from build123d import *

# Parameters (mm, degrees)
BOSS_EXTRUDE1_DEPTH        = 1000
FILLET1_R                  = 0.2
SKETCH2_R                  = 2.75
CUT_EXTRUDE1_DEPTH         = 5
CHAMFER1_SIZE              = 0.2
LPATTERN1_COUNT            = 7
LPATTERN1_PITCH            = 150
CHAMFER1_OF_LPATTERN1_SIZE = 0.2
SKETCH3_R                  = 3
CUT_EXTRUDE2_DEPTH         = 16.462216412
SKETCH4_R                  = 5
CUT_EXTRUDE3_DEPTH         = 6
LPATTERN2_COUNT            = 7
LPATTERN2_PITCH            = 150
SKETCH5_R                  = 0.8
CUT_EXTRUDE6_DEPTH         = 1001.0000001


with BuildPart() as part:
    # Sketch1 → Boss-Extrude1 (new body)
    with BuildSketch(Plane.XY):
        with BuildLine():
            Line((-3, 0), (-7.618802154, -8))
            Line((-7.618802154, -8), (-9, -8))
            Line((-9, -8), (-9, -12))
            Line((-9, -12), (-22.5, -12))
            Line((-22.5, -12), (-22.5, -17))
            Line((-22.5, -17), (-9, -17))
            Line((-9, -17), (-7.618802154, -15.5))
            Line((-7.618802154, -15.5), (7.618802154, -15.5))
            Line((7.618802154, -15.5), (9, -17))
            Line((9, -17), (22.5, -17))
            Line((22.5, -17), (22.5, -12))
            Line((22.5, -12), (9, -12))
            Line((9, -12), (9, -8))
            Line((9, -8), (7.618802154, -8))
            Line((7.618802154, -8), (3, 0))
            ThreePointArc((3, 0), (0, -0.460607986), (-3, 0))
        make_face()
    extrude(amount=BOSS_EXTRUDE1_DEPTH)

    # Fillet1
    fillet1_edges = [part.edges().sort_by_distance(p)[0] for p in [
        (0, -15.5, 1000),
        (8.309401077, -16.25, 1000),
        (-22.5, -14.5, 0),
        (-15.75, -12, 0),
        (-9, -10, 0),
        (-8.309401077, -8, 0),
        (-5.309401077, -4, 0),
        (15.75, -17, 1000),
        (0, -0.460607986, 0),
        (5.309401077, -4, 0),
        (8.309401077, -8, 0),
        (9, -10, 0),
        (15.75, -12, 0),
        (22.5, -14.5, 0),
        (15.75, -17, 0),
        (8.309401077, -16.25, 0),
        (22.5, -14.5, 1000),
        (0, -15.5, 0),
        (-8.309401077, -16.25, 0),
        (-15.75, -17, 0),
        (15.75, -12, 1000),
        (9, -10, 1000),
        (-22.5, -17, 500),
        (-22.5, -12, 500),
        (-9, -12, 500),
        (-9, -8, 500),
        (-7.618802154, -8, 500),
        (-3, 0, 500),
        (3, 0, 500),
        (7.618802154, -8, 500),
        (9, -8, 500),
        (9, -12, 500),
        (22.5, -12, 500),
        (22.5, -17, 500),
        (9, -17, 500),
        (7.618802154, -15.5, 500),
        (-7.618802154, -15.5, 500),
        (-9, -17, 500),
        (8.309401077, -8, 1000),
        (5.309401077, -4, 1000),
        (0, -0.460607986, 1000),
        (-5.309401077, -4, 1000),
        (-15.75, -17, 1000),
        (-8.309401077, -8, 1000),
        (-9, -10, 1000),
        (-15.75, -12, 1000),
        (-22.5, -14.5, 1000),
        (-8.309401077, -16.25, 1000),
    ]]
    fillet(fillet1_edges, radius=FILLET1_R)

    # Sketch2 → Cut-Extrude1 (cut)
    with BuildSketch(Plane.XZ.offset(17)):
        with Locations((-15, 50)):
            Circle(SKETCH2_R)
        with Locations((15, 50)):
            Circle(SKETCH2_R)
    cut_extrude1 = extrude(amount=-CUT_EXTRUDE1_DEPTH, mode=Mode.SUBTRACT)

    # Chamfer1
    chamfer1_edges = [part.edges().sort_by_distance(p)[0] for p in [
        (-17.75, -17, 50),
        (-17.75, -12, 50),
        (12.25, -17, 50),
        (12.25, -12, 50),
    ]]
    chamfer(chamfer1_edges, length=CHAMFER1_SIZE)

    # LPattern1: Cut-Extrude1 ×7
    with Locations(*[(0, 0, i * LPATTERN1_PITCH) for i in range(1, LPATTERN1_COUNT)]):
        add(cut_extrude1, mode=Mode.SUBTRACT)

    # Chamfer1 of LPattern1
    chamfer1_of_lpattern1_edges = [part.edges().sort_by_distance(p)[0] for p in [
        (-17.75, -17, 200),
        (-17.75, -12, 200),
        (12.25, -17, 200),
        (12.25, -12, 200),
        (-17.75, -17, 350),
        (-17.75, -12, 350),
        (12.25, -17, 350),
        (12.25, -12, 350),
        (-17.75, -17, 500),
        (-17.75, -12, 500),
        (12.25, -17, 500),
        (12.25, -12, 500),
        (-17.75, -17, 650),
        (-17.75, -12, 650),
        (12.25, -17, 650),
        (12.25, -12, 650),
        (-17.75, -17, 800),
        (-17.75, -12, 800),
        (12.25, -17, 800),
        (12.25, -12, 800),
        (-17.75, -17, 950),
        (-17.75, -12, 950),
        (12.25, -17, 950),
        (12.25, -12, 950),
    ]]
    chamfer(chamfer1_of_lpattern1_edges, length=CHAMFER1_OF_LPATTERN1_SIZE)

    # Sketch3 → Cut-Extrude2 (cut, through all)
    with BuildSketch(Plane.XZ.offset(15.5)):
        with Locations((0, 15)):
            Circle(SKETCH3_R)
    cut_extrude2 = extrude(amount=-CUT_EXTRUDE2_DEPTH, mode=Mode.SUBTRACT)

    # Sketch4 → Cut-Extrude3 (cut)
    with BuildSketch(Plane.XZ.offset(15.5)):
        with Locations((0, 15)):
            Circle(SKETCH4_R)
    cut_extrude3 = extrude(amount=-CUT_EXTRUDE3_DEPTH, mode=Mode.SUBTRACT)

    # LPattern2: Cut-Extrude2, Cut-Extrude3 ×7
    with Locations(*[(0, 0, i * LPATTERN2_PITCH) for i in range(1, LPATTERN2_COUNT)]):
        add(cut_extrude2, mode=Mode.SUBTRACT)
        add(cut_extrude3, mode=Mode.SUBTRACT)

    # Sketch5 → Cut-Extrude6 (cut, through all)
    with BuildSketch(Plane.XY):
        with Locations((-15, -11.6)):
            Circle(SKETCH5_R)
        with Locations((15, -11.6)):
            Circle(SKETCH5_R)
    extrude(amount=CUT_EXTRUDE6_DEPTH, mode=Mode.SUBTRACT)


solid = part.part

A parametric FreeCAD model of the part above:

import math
import FreeCAD as App
import Part
import Sketcher
from FreeCAD import Vector
Q = App.Units.Quantity


def edges_at(feature, points):
    """Names of the edges that pass closest to the given points."""
    edges = feature.Shape.Edges
    near = lambda p: min(range(len(edges)), key=lambda i: edges[i].distToShape(Part.Vertex(*p))[0])
    return sorted({f"Edge{near(p) + 1}" for p in points})

doc = App.newDocument("Part")
body = doc.addObject("PartDesign::Body", "Body")

# Sketch on XY plane
sketch1 = body.newObject("Sketcher::SketchObject", "Sketch")
sketch1.AttachmentSupport = (doc.getObject("XY_Plane"), [""])
sketch1.MapMode = "FlatFace"
sketch1.addGeometry([
    Part.LineSegment(Vector(-3, 0, 0), Vector(-7.618802, -8, 0)),  # 0
    Part.LineSegment(Vector(-7.618802, -8, 0), Vector(-9, -8, 0)),  # 1
    Part.LineSegment(Vector(-9, -8, 0), Vector(-9, -12, 0)),  # 2
    Part.LineSegment(Vector(-9, -12, 0), Vector(-22.5, -12, 0)),  # 3
    Part.LineSegment(Vector(-22.5, -12, 0), Vector(-22.5, -17, 0)),  # 4
    Part.LineSegment(Vector(-22.5, -17, 0), Vector(-9, -17, 0)),  # 5
    Part.LineSegment(Vector(-9, -17, 0), Vector(-7.618802, -15.5, 0)),  # 6
    Part.LineSegment(Vector(-7.618802, -15.5, 0), Vector(7.618802, -15.5, 0)),  # 7
    Part.LineSegment(Vector(7.618802, -15.5, 0), Vector(9, -17, 0)),  # 8
    Part.LineSegment(Vector(9, -17, 0), Vector(22.5, -17, 0)),  # 9
    Part.LineSegment(Vector(22.5, -17, 0), Vector(22.5, -12, 0)),  # 10
    Part.LineSegment(Vector(22.5, -12, 0), Vector(9, -12, 0)),  # 11
    Part.LineSegment(Vector(9, -12, 0), Vector(9, -8, 0)),  # 12
    Part.LineSegment(Vector(9, -8, 0), Vector(7.618802, -8, 0)),  # 13
    Part.LineSegment(Vector(7.618802, -8, 0), Vector(3, 0, 0)),  # 14
    Part.ArcOfCircle(Part.Circle(Vector(0, 9.539392, 0), Vector(0, 0, 1), 10), math.radians(-107.457603), math.radians(-72.542397)),  # 15
], False)
sketch1.addConstraint([
    Sketcher.Constraint("Coincident", 0, 2, 1, 1),
    Sketcher.Constraint("Coincident", 1, 2, 2, 1),
    Sketcher.Constraint("Coincident", 2, 2, 3, 1),
    Sketcher.Constraint("Coincident", 3, 2, 4, 1),
    Sketcher.Constraint("Coincident", 4, 2, 5, 1),
    Sketcher.Constraint("Coincident", 5, 2, 6, 1),
    Sketcher.Constraint("Coincident", 6, 2, 7, 1),
    Sketcher.Constraint("Coincident", 7, 2, 8, 1),
    Sketcher.Constraint("Coincident", 8, 2, 9, 1),
    Sketcher.Constraint("Coincident", 9, 2, 10, 1),
    Sketcher.Constraint("Coincident", 10, 2, 11, 1),
    Sketcher.Constraint("Coincident", 11, 2, 12, 1),
    Sketcher.Constraint("Coincident", 12, 2, 13, 1),
    Sketcher.Constraint("Coincident", 13, 2, 14, 1),
    Sketcher.Constraint("Coincident", 14, 2, 15, 2),
    Sketcher.Constraint("Coincident", 15, 1, 0, 1),
    Sketcher.Constraint("Horizontal", 1),
    Sketcher.Constraint("Vertical", 2),
    Sketcher.Constraint("Horizontal", 3),
    Sketcher.Constraint("Vertical", 4),
    Sketcher.Constraint("Horizontal", 5),
    Sketcher.Constraint("Horizontal", 7),
    Sketcher.Constraint("Horizontal", 9),
    Sketcher.Constraint("Vertical", 10),
    Sketcher.Constraint("Horizontal", 11),
    Sketcher.Constraint("Vertical", 12),
    Sketcher.Constraint("Horizontal", 13),
    Sketcher.Constraint("Symmetric", 14, 2, 15, 1, -1, 1),
    Sketcher.Constraint("Symmetric", 5, 2, 8, 2, -2),
    Sketcher.Constraint("Symmetric", 3, 2, 10, 2, -2),
    Sketcher.Constraint("Symmetric", 1, 2, 12, 2, -2),
    Sketcher.Constraint("PointOnObject", 15, 3, -2),
    Sketcher.Constraint("Vertical", 2, 2, 5, 2),
    Sketcher.Constraint("Vertical", 0, 2, 6, 2),
    Sketcher.Constraint("Vertical", 7, 2, 13, 2),
    Sketcher.Constraint("Equal", 1, 13),
    Sketcher.Constraint("Radius", 15, Q("10 mm")),
    Sketcher.Constraint("DistanceY", 2, 2, 2, 1, Q("4 mm")),
    Sketcher.Constraint("DistanceY", 4, 2, 4, 1, Q("5 mm")),
    Sketcher.Constraint("Angle", 0, Q("-120 deg")),
    Sketcher.Constraint("DistanceX", 3, 2, 3, 1, Q("13.5 mm")),
    Sketcher.Constraint("DistanceY", 0, 2, -1, 1, Q("8 mm")),
    Sketcher.Constraint("DistanceX", 1, 2, -1, 1, Q("9 mm")),
    Sketcher.Constraint("DistanceX", -1, 1, 14, 2, Q("3 mm")),
    Sketcher.Constraint("DistanceY", 6, 2, -1, 1, Q("15.5 mm")),
])
pad1 = body.newObject("PartDesign::Pad", "Pad")
pad1.Profile = sketch1
pad1.Length = 1000
doc.recompute()

fillet = body.newObject("PartDesign::Fillet", "Fillet")
fillet.Base = (pad1, ["Edge1"])
fillet.UseAllEdges = True
fillet.Radius = 0.2

# Sketch on XZ plane
sketch2 = body.newObject("Sketcher::SketchObject", "Sketch001")
sketch2.AttachmentSupport = (doc.getObject("XZ_Plane"), [""])
sketch2.MapMode = "FlatFace"
sketch2.AttachmentOffset = App.Placement(Vector(0, 0, 17), App.Rotation())
sketch2.addGeometry([
    Part.Circle(Vector(-15, 50, 0), Vector(0, 0, 1), 2.75),
    Part.Circle(Vector(15, 50, 0), Vector(0, 0, 1), 2.75),
], False)
sketch2.addConstraint([
    Sketcher.Constraint("Equal", 0, 1),
    Sketcher.Constraint("Symmetric", 0, 3, 1, 3, -2),
    Sketcher.Constraint("Diameter", 0, Q("5.5 mm")),
    Sketcher.Constraint("DistanceX", 0, 3, -1, 1, Q("15 mm")),
    Sketcher.Constraint("DistanceY", -1, 1, 0, 3, Q("50 mm")),
])
pocket1 = body.newObject("PartDesign::Pocket", "Pocket")
pocket1.Profile = sketch2
pocket1.Length = 5
doc.recompute()

chamfer = body.newObject("PartDesign::Chamfer", "Chamfer")
chamfer.Base = (pocket1, edges_at(pocket1, [
    (-17.75, -17, 50),
    (-17.75, -12, 50),
    (12.25, -17, 50),
    (12.25, -12, 50),
]))
chamfer.Size = 0.2
doc.recompute()

linearpattern = body.newObject("PartDesign::LinearPattern", "LinearPattern")
linearpattern.Originals = [pocket1]
linearpattern.Direction = (doc.getObject("Z_Axis"), [""])
linearpattern.Mode = "offset"
linearpattern.Offset = 150
linearpattern.Occurrences = 7
body.Tip = linearpattern
doc.recompute()

chamfer2 = body.newObject("PartDesign::Chamfer", "Chamfer001")
chamfer2.Base = (linearpattern, edges_at(linearpattern, [
    (-17.75, -17, 200),
    (-17.75, -12, 200),
    (12.25, -17, 200),
    (12.25, -12, 200),
    (-17.75, -17, 350),
    (-17.75, -12, 350),
    (12.25, -17, 350),
    (12.25, -12, 350),
    (-17.75, -17, 500),
    (-17.75, -12, 500),
    (12.25, -17, 500),
    (12.25, -12, 500),
    (-17.75, -17, 650),
    (-17.75, -12, 650),
    (12.25, -17, 650),
    (12.25, -12, 650),
    (-17.75, -17, 800),
    (-17.75, -12, 800),
    (12.25, -17, 800),
    (12.25, -12, 800),
    (-17.75, -17, 950),
    (-17.75, -12, 950),
    (12.25, -17, 950),
    (12.25, -12, 950),
]))
chamfer2.Size = 0.2

# Sketch on XZ plane
sketch3 = body.newObject("Sketcher::SketchObject", "Sketch002")
sketch3.AttachmentSupport = (doc.getObject("XZ_Plane"), [""])
sketch3.MapMode = "FlatFace"
sketch3.AttachmentOffset = App.Placement(Vector(0, 0, 15.5), App.Rotation())
sketch3.addGeometry(Part.Circle(Vector(0, 15, 0), Vector(0, 0, 1), 3), False)
sketch3.addConstraint([
    Sketcher.Constraint("PointOnObject", 0, 3, -2),
    Sketcher.Constraint("Diameter", 0, Q("6 mm")),
    Sketcher.Constraint("DistanceY", -1, 1, 0, 3, Q("15 mm")),
])
pocket2 = body.newObject("PartDesign::Pocket", "Pocket001")
pocket2.Profile = sketch3
pocket2.Type = "ThroughAll"

# Sketch on XZ plane
sketch4 = body.newObject("Sketcher::SketchObject", "Sketch003")
sketch4.AttachmentSupport = (doc.getObject("XZ_Plane"), [""])
sketch4.MapMode = "FlatFace"
sketch4.AttachmentOffset = App.Placement(Vector(0, 0, 15.5), App.Rotation())
sketch4.addGeometry(Part.Circle(Vector(0, 15, 0), Vector(0, 0, 1), 5), False)
sketch4.addConstraint([
    Sketcher.Constraint("PointOnObject", 0, 3, -2),
    Sketcher.Constraint("Diameter", 0, Q("10 mm")),
    Sketcher.Constraint("DistanceY", -1, 1, 0, 3, Q("15 mm")),
])
pocket3 = body.newObject("PartDesign::Pocket", "Pocket002")
pocket3.Profile = sketch4
pocket3.Length = 6
doc.recompute()

linearpattern2 = body.newObject("PartDesign::LinearPattern", "LinearPattern001")
linearpattern2.Originals = [pocket2, pocket3]
linearpattern2.Direction = (doc.getObject("Z_Axis"), [""])
linearpattern2.Mode = "offset"
linearpattern2.Offset = 150
linearpattern2.Occurrences = 7
body.Tip = linearpattern2

# Sketch on XY plane
sketch5 = body.newObject("Sketcher::SketchObject", "Sketch004")
sketch5.AttachmentSupport = (doc.getObject("XY_Plane"), [""])
sketch5.MapMode = "FlatFace"
sketch5.addGeometry([
    Part.Circle(Vector(-15, -11.6, 0), Vector(0, 0, 1), 0.8),
    Part.Circle(Vector(15, -11.6, 0), Vector(0, 0, 1), 0.8),
], False)
sketch5.addConstraint([
    Sketcher.Constraint("Equal", 0, 1),
    Sketcher.Constraint("Symmetric", 0, 3, 1, 3, -2),
    Sketcher.Constraint("Diameter", 0, Q("1.6 mm")),
    Sketcher.Constraint("DistanceX", 0, 3, -1, 1, Q("15 mm")),
    Sketcher.Constraint("DistanceY", 0, 3, -1, 1, Q("11.6 mm")),
])
pocket4 = body.newObject("PartDesign::Pocket", "Pocket003")
pocket4.Profile = sketch5
pocket4.Type = "ThroughAll"
pocket4.Reversed = True

doc.recompute()
